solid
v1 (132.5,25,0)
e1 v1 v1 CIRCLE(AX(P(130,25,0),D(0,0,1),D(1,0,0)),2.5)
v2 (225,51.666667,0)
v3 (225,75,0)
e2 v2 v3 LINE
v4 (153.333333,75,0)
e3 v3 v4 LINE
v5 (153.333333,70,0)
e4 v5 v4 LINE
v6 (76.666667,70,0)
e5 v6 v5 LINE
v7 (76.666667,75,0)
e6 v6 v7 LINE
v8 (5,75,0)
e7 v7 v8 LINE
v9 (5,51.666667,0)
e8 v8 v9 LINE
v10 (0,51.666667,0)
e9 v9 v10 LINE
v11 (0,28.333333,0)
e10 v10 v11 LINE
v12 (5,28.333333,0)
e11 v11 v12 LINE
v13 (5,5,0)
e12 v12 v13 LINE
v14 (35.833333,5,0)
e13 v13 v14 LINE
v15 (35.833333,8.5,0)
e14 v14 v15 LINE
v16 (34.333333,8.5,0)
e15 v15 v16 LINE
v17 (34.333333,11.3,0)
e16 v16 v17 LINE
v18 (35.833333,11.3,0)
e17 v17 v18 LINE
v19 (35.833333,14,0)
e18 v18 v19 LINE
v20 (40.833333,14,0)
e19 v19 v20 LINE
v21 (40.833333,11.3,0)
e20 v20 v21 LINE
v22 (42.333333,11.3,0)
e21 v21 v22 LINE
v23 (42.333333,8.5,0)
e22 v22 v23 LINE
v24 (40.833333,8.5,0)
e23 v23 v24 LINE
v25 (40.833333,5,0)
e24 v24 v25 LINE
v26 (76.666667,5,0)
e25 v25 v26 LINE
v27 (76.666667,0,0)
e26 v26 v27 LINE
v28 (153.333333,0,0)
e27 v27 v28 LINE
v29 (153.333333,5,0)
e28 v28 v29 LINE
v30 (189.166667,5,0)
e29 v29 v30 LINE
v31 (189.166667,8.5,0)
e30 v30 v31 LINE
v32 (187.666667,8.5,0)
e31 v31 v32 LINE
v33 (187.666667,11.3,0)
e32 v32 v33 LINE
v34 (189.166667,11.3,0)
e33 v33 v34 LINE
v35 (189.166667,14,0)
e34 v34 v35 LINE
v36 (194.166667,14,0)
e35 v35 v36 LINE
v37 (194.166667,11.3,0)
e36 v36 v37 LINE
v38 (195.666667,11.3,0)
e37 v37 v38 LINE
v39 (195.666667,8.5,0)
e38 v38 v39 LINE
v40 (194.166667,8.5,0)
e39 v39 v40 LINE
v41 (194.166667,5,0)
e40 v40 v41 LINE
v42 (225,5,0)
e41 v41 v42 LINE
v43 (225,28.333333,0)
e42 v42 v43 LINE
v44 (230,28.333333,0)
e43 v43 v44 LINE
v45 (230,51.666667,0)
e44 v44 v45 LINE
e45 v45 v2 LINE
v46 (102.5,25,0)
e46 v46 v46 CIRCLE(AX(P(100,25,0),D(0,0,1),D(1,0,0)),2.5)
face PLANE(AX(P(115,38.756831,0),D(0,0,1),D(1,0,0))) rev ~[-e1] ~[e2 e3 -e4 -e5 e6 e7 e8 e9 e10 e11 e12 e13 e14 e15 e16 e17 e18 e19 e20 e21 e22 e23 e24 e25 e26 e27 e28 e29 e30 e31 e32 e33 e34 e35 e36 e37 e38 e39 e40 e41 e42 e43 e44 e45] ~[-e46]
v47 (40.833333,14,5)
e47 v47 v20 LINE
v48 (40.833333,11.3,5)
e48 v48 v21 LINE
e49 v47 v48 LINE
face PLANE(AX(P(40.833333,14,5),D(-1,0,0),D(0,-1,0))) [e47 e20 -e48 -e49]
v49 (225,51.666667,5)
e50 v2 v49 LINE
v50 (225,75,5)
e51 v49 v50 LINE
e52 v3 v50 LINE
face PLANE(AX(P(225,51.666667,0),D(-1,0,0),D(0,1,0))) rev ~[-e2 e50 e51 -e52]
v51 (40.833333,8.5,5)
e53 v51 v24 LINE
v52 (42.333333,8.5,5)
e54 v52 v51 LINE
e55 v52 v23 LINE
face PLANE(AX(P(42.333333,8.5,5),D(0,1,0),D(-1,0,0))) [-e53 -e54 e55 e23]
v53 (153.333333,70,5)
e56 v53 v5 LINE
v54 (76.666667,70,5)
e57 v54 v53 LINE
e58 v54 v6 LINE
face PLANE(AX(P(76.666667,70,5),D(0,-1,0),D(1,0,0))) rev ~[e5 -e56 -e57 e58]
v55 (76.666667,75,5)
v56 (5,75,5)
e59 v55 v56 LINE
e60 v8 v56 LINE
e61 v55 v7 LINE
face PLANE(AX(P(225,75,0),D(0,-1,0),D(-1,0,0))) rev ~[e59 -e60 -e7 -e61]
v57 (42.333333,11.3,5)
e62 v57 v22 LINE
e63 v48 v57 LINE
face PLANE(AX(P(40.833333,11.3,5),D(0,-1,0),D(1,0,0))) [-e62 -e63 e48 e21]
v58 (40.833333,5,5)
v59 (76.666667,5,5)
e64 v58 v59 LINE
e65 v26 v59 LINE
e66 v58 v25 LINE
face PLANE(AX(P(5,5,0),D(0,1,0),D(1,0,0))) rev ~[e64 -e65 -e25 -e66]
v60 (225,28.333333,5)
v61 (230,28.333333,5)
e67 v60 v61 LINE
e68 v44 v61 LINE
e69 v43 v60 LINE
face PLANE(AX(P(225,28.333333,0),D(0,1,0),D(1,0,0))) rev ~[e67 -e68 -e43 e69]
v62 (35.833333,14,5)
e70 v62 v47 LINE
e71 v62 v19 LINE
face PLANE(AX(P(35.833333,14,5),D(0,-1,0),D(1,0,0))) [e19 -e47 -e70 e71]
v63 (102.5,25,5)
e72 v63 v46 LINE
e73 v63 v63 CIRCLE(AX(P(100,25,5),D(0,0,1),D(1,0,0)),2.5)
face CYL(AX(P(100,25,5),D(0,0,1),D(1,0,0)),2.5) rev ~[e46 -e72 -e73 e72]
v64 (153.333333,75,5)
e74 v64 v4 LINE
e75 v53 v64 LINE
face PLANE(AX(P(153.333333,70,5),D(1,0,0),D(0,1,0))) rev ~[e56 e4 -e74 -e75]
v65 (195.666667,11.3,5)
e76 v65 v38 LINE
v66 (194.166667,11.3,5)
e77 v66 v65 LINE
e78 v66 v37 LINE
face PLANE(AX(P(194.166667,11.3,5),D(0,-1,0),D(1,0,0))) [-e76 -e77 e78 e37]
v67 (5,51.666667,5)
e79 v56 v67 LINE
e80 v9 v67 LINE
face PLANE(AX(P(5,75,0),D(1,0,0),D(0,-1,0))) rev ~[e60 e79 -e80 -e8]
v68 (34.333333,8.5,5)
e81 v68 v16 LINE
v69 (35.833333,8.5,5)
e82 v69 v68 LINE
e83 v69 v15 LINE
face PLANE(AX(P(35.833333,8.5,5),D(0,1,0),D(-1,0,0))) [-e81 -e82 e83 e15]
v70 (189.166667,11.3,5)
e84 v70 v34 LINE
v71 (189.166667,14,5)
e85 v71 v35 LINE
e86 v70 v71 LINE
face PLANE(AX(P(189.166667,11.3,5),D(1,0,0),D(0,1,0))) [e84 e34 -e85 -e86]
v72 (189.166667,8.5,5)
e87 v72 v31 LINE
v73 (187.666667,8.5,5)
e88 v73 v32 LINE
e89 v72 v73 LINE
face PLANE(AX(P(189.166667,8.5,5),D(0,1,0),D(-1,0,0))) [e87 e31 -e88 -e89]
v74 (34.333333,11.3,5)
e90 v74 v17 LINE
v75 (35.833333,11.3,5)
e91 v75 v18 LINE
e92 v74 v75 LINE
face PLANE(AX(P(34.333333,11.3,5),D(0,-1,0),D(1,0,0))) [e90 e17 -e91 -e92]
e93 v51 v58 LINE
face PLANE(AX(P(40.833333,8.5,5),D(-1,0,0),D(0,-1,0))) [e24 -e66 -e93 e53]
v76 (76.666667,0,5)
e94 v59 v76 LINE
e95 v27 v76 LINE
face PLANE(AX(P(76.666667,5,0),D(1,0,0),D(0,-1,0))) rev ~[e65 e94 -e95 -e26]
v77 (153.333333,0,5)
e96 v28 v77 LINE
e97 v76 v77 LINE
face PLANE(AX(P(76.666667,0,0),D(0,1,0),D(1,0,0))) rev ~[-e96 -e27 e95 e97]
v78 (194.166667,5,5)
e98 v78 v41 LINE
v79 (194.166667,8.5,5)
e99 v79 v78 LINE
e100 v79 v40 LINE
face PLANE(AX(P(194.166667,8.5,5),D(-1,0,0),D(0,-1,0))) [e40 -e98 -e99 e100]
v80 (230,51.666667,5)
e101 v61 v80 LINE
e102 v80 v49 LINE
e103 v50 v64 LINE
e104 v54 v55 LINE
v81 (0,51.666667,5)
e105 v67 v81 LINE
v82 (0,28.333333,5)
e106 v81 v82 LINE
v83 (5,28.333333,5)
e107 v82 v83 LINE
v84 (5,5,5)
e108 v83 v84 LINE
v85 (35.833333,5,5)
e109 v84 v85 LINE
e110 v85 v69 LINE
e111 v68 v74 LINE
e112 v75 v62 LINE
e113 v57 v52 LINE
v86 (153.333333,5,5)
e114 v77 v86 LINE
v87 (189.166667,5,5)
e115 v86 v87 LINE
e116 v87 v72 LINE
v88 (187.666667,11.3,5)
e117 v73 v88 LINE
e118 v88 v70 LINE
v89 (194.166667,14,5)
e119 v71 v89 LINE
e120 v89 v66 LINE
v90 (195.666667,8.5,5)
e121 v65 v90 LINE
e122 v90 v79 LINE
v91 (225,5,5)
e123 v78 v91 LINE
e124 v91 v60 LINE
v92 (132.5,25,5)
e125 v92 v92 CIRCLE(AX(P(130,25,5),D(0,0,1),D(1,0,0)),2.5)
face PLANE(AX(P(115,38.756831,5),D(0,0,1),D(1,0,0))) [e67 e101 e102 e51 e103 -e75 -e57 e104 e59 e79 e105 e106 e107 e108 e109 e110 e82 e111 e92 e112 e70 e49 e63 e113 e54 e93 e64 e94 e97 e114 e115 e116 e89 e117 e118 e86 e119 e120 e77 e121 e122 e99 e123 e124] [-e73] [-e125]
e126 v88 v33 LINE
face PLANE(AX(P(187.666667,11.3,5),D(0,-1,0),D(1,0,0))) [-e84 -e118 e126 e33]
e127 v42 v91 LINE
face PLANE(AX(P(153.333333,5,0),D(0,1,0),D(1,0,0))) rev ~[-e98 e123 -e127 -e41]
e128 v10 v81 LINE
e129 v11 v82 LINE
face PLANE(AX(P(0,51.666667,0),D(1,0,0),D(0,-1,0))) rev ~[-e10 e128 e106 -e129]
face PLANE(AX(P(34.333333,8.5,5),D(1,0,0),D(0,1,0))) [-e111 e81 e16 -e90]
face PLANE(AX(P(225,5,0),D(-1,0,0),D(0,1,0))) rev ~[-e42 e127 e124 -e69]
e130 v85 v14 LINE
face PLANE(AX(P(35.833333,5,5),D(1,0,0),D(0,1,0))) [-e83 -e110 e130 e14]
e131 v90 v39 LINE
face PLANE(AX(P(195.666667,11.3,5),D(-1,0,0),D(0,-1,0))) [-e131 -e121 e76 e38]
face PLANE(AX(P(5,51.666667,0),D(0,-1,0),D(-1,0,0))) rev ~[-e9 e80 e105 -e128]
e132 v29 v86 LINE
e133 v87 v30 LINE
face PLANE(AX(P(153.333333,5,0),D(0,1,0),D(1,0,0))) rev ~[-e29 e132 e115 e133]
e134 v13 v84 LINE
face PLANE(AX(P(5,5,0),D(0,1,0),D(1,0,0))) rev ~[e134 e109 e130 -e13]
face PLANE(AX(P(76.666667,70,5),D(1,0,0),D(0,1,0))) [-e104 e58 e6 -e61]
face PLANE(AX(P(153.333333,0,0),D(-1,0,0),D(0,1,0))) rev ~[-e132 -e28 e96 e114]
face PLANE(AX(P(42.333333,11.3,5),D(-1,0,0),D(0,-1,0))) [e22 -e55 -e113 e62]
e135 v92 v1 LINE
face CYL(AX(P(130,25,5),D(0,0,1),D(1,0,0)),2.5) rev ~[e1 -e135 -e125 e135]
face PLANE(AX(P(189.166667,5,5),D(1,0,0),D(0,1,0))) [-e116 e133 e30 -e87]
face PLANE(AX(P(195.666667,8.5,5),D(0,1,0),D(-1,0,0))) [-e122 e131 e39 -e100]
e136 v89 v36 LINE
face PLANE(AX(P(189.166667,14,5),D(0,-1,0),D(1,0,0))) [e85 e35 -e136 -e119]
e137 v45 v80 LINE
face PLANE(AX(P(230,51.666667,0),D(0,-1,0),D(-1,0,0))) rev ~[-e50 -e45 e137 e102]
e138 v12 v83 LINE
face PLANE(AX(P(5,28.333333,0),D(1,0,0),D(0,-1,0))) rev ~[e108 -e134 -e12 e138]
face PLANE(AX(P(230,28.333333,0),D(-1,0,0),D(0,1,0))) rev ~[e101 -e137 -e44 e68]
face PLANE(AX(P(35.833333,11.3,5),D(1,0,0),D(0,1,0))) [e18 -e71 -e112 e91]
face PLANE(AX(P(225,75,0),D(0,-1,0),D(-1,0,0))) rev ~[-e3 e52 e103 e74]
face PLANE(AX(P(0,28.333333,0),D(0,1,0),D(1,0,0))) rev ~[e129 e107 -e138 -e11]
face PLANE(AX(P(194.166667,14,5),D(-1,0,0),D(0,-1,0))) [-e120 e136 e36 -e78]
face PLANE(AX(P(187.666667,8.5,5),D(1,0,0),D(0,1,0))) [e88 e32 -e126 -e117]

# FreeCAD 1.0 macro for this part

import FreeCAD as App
import Part
import Sketcher

V = App.Vector


def add_polygon(sketch, points):
    """Adds a closed chain of lines whose ends are joined by coincident constraints."""
    first, n = sketch.GeometryCount, len(points)
    for a, b in zip(points, points[1:] + points[:1]):
        sketch.addGeometry(Part.LineSegment(App.Vector(*a, 0), App.Vector(*b, 0)), False)
    for i in range(n):
        sketch.addConstraint(Sketcher.Constraint("Coincident", first + i, 2, first + (i + 1) % n, 1))

doc = App.newDocument("Part")
body = doc.addObject("PartDesign::Body", "Body")

# Sketch on XY plane
sketch1 = body.newObject("Sketcher::SketchObject", "Sketch")
sketch1.AttachmentSupport = (doc.getObject("XY_Plane"), [""])
sketch1.MapMode = "FlatFace"
add_polygon(sketch1, [(77, 5), (77, 0), (153, 0), (153, 5), (225, 5), (225, 28), (230, 28), (230, 52), (225, 52), (225, 75), (5, 75), (5, 52), (0, 52), (0, 28), (5, 28), (5, 5)])  # lines 0-15
sketch1.addConstraint(Sketcher.Constraint("Vertical", 0))
sketch1.addConstraint(Sketcher.Constraint("Horizontal", 1))
sketch1.addConstraint(Sketcher.Constraint("Vertical", 2))
sketch1.addConstraint(Sketcher.Constraint("Horizontal", 3))
sketch1.addConstraint(Sketcher.Constraint("Vertical", 4))
sketch1.addConstraint(Sketcher.Constraint("Horizontal", 5))
sketch1.addConstraint(Sketcher.Constraint("Vertical", 6))
sketch1.addConstraint(Sketcher.Constraint("Horizontal", 7))
sketch1.addConstraint(Sketcher.Constraint("Vertical", 8))
sketch1.addConstraint(Sketcher.Constraint("Horizontal", 9))
sketch1.addConstraint(Sketcher.Constraint("Vertical", 10))
sketch1.addConstraint(Sketcher.Constraint("Horizontal", 11))
sketch1.addConstraint(Sketcher.Constraint("Vertical", 12))
sketch1.addConstraint(Sketcher.Constraint("Horizontal", 13))
sketch1.addConstraint(Sketcher.Constraint("Vertical", 14))
sketch1.addConstraint(Sketcher.Constraint("Horizontal", 15))
sketch1.addConstraint(Sketcher.Constraint("PointOnObject", 0, 2, -1))
sketch1.addConstraint(Sketcher.Constraint("PointOnObject", 11, 2, -2))
sketch1.addConstraint(Sketcher.Constraint("Horizontal", 7, 2, 10, 2))
sketch1.addConstraint(Sketcher.Constraint("Horizontal", 5, 2, 12, 2))
sketch1.addConstraint(Sketcher.Constraint("Horizontal", 3, 2, 14, 2))
sketch1.addConstraint(Sketcher.Constraint("Vertical", 4, 2, 7, 2))
sketch1.addConstraint(Sketcher.Constraint("Vertical", 10, 2, 13, 2))
sketch1.addConstraint(Sketcher.Constraint("Equal", 7, 11))
sketch1.addConstraint(Sketcher.Constraint("Equal", 3, 15))
sketch1.addConstraint(Sketcher.Constraint("Equal", 13, 0))
sketch1.addConstraint(Sketcher.Constraint("Equal", 4, 6))
sketch1.addConstraint(Sketcher.Constraint("Equal", 6, 8))
sketch1.addConstraint(Sketcher.Constraint("DistanceX", 5, 1, 5, 2, 5.0))
sketch1.addConstraint(Sketcher.Constraint("DistanceX", 9, 2, 9, 1, 220.0))
sketch1.addConstraint(Sketcher.Constraint("DistanceY", -1, 1, 8, 2, 75.0))
sketch1.addConstraint(Sketcher.Constraint("DistanceX", 1, 1, 1, 2, 76.666667))
pad1 = body.newObject("PartDesign::Pad", "Pad")
pad1.Profile = sketch1
pad1.Length = 5

# Sketch on XY plane
sketch2 = body.newObject("Sketcher::SketchObject", "Sketch001")
sketch2.AttachmentSupport = (doc.getObject("XY_Plane"), [""])
sketch2.MapMode = "FlatFace"
sketch2.AttachmentOffset = App.Placement(V(0, 0, 5), App.Rotation())
add_polygon(sketch2, [(35.8, 8.5), (35.8, 5), (40.8, 5), (40.8, 8.5), (42.3, 8.5), (42.3, 11.3), (40.8, 11.3), (40.8, 14), (35.8, 14), (35.8, 11.3), (34.3, 11.3), (34.3, 8.5)])  # lines 0-11
add_polygon(sketch2, [(189.2, 8.5), (189.2, 5), (194.2, 5), (194.2, 8.5), (195.7, 8.5), (195.7, 11.3), (194.2, 11.3), (194.2, 14), (189.2, 14), (189.2, 11.3), (187.7, 11.3), (187.7, 8.5)])  # lines 12-23
sketch2.addConstraint(Sketcher.Constraint("Vertical", 0))
sketch2.addConstraint(Sketcher.Constraint("Horizontal", 1))
sketch2.addConstraint(Sketcher.Constraint("Vertical", 2))
sketch2.addConstraint(Sketcher.Constraint("Horizontal", 3))
sketch2.addConstraint(Sketcher.Constraint("Vertical", 4))
sketch2.addConstraint(Sketcher.Constraint("Horizontal", 5))
sketch2.addConstraint(Sketcher.Constraint("Vertical", 6))
sketch2.addConstraint(Sketcher.Constraint("Horizontal", 7))
sketch2.addConstraint(Sketcher.Constraint("Vertical", 8))
sketch2.addConstraint(Sketcher.Constraint("Horizontal", 9))
sketch2.addConstraint(Sketcher.Constraint("Vertical", 10))
sketch2.addConstraint(Sketcher.Constraint("Horizontal", 11))
sketch2.addConstraint(Sketcher.Constraint("Vertical", 12))
sketch2.addConstraint(Sketcher.Constraint("Horizontal", 13))
sketch2.addConstraint(Sketcher.Constraint("Vertical", 14))
sketch2.addConstraint(Sketcher.Constraint("Horizontal", 15))
sketch2.addConstraint(Sketcher.Constraint("Vertical", 16))
sketch2.addConstraint(Sketcher.Constraint("Horizontal", 17))
sketch2.addConstraint(Sketcher.Constraint("Vertical", 18))
sketch2.addConstraint(Sketcher.Constraint("Horizontal", 19))
sketch2.addConstraint(Sketcher.Constraint("Vertical", 20))
sketch2.addConstraint(Sketcher.Constraint("Horizontal", 21))
sketch2.addConstraint(Sketcher.Constraint("Vertical", 22))
sketch2.addConstraint(Sketcher.Constraint("Horizontal", 23))
sketch2.addConstraint(Sketcher.Constraint("Horizontal", 5, 2, 8, 2))
sketch2.addConstraint(Sketcher.Constraint("Horizontal", 3, 2, 10, 2))
sketch2.addConstraint(Sketcher.Constraint("Horizontal", 1, 2, 12, 2))
sketch2.addConstraint(Sketcher.Constraint("Horizontal", 11, 2, 14, 2))
sketch2.addConstraint(Sketcher.Constraint("Horizontal", 9, 2, 16, 2))
sketch2.addConstraint(Sketcher.Constraint("Horizontal", 7, 2, 18, 2))
sketch2.addConstraint(Sketcher.Constraint("Horizontal", 17, 2, 20, 2))
sketch2.addConstraint(Sketcher.Constraint("Horizontal", 15, 2, 22, 2))
sketch2.addConstraint(Sketcher.Constraint("Vertical", 2, 2, 5, 2))
sketch2.addConstraint(Sketcher.Constraint("Vertical", 0, 2, 7, 2))
sketch2.addConstraint(Sketcher.Constraint("Vertical", 14, 2, 17, 2))
sketch2.addConstraint(Sketcher.Constraint("Vertical", 12, 2, 19, 2))
sketch2.addConstraint(Sketcher.Constraint("Equal", 5, 9))
sketch2.addConstraint(Sketcher.Constraint("Equal", 7, 13))
sketch2.addConstraint(Sketcher.Constraint("Equal", 11, 15))
sketch2.addConstraint(Sketcher.Constraint("Equal", 17, 21))
sketch2.addConstraint(Sketcher.Constraint("DistanceX", 1, 1, 1, 2, 5.0))
sketch2.addConstraint(Sketcher.Constraint("DistanceX", 3, 1, 3, 2, 1.5))
sketch2.addConstraint(Sketcher.Constraint("DistanceY", 0, 2, 0, 1, 3.5))
sketch2.addConstraint(Sketcher.Constraint("DistanceY", 4, 1, 4, 2, 2.8))
sketch2.addConstraint(Sketcher.Constraint("DistanceY", 6, 1, 6, 2, 2.7))
sketch2.addConstraint(Sketcher.Constraint("DistanceY", -1, 1, 0, 2, 5.0))
sketch2.addConstraint(Sketcher.Constraint("DistanceX", -1, 1, 0, 2, 35.833333))
sketch2.addConstraint(Sketcher.Constraint("DistanceX", -1, 1, 12, 2, 189.166667))
pocket1 = body.newObject("PartDesign::Pocket", "Pocket")
pocket1.Profile = sketch2
pocket1.Length = 5

# Sketch on XY plane
sketch3 = body.newObject("Sketcher::SketchObject", "Sketch002")
sketch3.AttachmentSupport = (doc.getObject("XY_Plane"), [""])
sketch3.MapMode = "FlatFace"
sketch3.AttachmentOffset = App.Placement(V(0, 0, 5), App.Rotation())
add_polygon(sketch3, [(77, 75), (77, 70), (153, 70), (153, 75)])  # lines 0-3
sketch3.addConstraint(Sketcher.Constraint("Vertical", 0))
sketch3.addConstraint(Sketcher.Constraint("Horizontal", 1))
sketch3.addConstraint(Sketcher.Constraint("Vertical", 2))
sketch3.addConstraint(Sketcher.Constraint("Horizontal", 3))
sketch3.addConstraint(Sketcher.Constraint("DistanceY", 0, 2, 0, 1, 5.0))
sketch3.addConstraint(Sketcher.Constraint("DistanceY", -1, 1, 0, 2, 70.0))
sketch3.addConstraint(Sketcher.Constraint("DistanceX", 1, 1, 1, 2, 76.666667))
sketch3.addConstraint(Sketcher.Constraint("DistanceX", -1, 1, 0, 2, 76.666667))
pocket2 = body.newObject("PartDesign::Pocket", "Pocket001")
pocket2.Profile = sketch3
pocket2.Length = 10

# Sketch on XY plane
sketch4 = body.newObject("Sketcher::SketchObject", "Sketch003")
sketch4.AttachmentSupport = (doc.getObject("XY_Plane"), [""])
sketch4.MapMode = "FlatFace"
sketch4.AttachmentOffset = App.Placement(V(0, 0, 5), App.Rotation())
sketch4.addGeometry(Part.Circle(V(100, 25, 0), V(0, 0, 1), 2.5), False)
sketch4.addGeometry(Part.Circle(V(130, 25, 0), V(0, 0, 1), 2.5), False)
sketch4.addConstraint(Sketcher.Constraint("Equal", 0, 1))
sketch4.addConstraint(Sketcher.Constraint("Horizontal", 0, 3, 1, 3))
sketch4.addConstraint(Sketcher.Constraint("Diameter", 0, 5.0))
sketch4.addConstraint(Sketcher.Constraint("DistanceX", -1, 1, 0, 3, 100.0))
sketch4.addConstraint(Sketcher.Constraint("DistanceY", -1, 1, 0, 3, 25.0))
sketch4.addConstraint(Sketcher.Constraint("DistanceX", -1, 1, 1, 3, 130.0))
pocket3 = body.newObject("PartDesign::Pocket", "Pocket002")
pocket3.Profile = sketch4
pocket3.Length = 10

doc.recompute()
